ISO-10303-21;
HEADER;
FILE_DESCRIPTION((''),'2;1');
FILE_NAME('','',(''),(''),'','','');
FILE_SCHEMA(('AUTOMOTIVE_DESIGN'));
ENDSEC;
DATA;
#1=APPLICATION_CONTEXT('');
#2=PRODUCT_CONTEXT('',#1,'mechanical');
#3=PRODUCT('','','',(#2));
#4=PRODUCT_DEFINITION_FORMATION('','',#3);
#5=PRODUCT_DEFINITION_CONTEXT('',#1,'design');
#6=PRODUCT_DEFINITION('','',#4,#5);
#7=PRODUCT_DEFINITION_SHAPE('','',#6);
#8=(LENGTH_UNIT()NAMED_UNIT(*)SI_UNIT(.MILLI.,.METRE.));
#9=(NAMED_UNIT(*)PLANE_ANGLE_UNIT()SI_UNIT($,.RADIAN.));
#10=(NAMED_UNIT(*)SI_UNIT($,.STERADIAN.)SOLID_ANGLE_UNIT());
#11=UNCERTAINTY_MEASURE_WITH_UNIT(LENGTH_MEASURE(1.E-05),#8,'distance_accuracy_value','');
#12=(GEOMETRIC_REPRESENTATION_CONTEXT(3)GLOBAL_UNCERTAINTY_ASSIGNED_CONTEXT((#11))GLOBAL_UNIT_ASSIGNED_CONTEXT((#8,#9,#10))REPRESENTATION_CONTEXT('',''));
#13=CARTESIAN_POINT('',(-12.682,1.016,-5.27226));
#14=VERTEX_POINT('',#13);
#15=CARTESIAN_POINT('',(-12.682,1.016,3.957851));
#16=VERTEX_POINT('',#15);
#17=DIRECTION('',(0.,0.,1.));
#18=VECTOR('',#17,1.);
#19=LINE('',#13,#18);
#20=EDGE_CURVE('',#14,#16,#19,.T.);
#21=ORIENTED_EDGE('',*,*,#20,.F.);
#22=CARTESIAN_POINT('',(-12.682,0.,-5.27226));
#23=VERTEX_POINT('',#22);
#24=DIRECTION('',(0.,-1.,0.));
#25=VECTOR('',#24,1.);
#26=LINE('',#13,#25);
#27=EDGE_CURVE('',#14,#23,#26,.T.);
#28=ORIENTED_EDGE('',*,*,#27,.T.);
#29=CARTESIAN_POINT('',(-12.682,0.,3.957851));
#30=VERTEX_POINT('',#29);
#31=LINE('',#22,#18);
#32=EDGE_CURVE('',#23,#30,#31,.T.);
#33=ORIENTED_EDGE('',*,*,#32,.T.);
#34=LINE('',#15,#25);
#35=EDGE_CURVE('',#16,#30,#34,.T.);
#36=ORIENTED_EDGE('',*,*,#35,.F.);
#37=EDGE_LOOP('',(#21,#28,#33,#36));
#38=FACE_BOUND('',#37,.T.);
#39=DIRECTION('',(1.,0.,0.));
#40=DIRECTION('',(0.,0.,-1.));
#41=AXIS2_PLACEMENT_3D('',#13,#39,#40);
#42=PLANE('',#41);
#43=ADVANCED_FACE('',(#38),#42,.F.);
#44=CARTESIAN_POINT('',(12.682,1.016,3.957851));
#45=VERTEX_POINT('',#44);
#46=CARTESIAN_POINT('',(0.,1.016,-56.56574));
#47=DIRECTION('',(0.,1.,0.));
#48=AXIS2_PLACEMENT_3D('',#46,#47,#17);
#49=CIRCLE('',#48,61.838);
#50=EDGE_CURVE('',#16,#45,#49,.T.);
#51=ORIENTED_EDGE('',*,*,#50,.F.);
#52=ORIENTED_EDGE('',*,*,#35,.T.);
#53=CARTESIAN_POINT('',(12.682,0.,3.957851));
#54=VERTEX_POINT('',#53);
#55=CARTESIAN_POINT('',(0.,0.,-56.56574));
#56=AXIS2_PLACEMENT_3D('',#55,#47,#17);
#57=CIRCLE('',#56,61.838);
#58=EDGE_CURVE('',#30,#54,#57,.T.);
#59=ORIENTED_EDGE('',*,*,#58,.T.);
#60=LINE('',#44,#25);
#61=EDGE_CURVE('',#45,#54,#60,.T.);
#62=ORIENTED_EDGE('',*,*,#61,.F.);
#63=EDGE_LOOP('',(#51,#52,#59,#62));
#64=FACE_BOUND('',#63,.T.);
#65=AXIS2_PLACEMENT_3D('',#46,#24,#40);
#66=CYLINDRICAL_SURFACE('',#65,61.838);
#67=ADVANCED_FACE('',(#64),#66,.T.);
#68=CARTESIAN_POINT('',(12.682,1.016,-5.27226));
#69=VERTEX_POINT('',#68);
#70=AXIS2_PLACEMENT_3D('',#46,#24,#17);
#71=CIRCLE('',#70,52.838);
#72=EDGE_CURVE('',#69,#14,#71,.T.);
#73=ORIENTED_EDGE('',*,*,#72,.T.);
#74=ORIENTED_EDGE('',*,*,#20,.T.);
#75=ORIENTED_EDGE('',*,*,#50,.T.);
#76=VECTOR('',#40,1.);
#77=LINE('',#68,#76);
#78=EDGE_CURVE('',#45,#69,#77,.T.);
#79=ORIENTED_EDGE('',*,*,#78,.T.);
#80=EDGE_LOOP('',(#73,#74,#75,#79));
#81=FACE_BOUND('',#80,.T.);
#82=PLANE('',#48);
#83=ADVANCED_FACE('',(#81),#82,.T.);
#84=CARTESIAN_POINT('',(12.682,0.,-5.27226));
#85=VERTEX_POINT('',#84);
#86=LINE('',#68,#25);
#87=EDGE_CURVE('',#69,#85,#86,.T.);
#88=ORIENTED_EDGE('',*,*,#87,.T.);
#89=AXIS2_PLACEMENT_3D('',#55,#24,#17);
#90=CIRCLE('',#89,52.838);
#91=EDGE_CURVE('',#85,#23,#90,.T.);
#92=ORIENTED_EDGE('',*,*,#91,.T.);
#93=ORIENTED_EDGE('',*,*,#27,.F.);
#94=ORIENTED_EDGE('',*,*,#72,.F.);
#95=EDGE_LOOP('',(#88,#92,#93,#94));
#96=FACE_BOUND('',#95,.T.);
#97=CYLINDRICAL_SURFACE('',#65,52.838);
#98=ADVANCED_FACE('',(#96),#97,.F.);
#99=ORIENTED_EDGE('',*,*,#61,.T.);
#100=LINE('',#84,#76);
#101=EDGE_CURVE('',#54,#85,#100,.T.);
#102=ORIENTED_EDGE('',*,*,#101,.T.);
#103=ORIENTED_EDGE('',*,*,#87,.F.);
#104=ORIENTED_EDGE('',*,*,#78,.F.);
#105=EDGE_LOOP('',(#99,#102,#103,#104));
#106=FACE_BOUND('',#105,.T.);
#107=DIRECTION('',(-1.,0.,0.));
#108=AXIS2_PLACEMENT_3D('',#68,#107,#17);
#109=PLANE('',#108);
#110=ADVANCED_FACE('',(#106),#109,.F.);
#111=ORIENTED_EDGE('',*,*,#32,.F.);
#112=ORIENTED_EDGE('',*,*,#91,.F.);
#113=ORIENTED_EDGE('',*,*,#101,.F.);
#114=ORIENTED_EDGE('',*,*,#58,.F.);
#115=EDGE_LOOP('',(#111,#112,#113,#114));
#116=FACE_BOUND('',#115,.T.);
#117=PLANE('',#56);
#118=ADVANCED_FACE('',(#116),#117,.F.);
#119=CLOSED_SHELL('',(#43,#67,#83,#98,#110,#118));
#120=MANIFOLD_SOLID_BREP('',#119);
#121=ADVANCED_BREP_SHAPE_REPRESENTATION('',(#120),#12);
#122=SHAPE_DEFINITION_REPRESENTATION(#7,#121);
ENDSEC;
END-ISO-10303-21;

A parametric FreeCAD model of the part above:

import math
import FreeCAD as App
import Part
import Sketcher
from FreeCAD import Vector
Q = App.Units.Quantity

doc = App.newDocument("Part")
params = doc.addObject("Spreadsheet::Sheet", "Params")
for row, (alias, value) in enumerate([
    ("pad1_length", "0.04 in"),
], start=1):
    params.set(f"A{row}", alias)
    params.set(f"B{row}", "=" + value)
    params.setAlias(f"B{row}", alias)

body = doc.addObject("PartDesign::Body", "Body")

# Sketch on XZ plane
sketch1 = doc.addObject("Sketcher::SketchObject", "Sketch")
body.addObject(sketch1)
sketch1.AttachmentSupport = (doc.XZ_Plane, [""])
sketch1.MapMode = "FlatFace"
sketch1.addGeometry([
    Part.LineSegment(Vector(-12.682, -5.27226, 0), Vector(-12.682, 3.957851, 0)),
    Part.ArcOfCircle(Part.Circle(Vector(0, -56.56574, 0), Vector(0, 0, 1), 61.838), math.radians(78.165569), math.radians(101.834431)),
    Part.LineSegment(Vector(12.682, 3.957851, 0), Vector(12.682, -5.27226, 0)),
    Part.ArcOfCircle(Part.Circle(Vector(0, -56.56574, 0), Vector(0, 0, 1), 52.838), math.radians(76.112477), math.radians(103.887523)),
], False)
sketch1.addConstraint([
    Sketcher.Constraint("Coincident", 0, 2, 1, 2),
    Sketcher.Constraint("Coincident", 1, 1, 2, 1),
    Sketcher.Constraint("Coincident", 2, 2, 3, 1),
    Sketcher.Constraint("Coincident", 3, 2, 0, 1),
    Sketcher.Constraint("Vertical", 0),
    Sketcher.Constraint("Vertical", 2),
    Sketcher.Constraint("Coincident", 3, 3, 1, 3),
    Sketcher.Constraint("Symmetric", 0, 2, 1, 1, -2),
    Sketcher.Constraint("Radius", 1, Q("61.838 mm")),
    Sketcher.Constraint("Radius", 3, Q("52.838 mm")),
    Sketcher.Constraint("DistanceY", 0, 1, 0, 2, Q("9.230111 mm")),
    Sketcher.Constraint("DistanceY", 1, 3, -1, 1, Q("56.56574 mm")),
])
pad1 = doc.addObject("PartDesign::Pad", "Pad")
body.addObject(pad1)
pad1.Profile = sketch1
pad1.setExpression("Length", "Params.pad1_length")
pad1.Reversed = True

doc.recompute()
